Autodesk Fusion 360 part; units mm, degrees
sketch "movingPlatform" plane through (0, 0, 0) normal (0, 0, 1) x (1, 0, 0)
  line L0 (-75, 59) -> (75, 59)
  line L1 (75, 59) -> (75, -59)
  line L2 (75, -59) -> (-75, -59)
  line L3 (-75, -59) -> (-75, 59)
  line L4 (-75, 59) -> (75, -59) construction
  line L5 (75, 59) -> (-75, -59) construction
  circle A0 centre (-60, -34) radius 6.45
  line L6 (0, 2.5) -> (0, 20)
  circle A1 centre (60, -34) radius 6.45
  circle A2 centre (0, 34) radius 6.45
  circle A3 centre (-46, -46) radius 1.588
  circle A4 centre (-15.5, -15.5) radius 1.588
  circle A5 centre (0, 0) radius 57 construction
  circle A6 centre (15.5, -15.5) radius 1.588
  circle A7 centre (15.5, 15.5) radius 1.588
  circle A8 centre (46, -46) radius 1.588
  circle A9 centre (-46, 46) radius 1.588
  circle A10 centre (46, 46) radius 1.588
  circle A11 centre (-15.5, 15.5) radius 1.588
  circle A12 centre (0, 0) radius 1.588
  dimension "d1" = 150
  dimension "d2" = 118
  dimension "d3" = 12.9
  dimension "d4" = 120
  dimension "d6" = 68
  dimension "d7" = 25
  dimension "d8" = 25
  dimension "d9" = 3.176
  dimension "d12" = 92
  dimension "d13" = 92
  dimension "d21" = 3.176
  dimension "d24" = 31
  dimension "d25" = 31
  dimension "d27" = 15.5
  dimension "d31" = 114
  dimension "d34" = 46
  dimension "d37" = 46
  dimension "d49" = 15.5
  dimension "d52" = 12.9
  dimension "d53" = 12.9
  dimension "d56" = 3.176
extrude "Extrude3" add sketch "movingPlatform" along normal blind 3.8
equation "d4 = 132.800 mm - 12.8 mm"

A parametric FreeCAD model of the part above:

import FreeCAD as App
import Part
import Sketcher
Q = App.Units.Quantity


def add_polygon(sketch, points):
    """Adds a closed chain of lines whose ends are joined by coincident constraints."""
    first, n = sketch.GeometryCount, len(points)
    for a, b in zip(points, points[1:] + points[:1]):
        sketch.addGeometry(Part.LineSegment(App.Vector(*a, 0), App.Vector(*b, 0)), False)
    for i in range(n):
        sketch.addConstraint(Sketcher.Constraint("Coincident", first + i, 2, first + (i + 1) % n, 1))

doc = App.newDocument("Part")
body = doc.addObject("PartDesign::Body", "Body")

# Sketch on XY plane
sketch1 = body.newObject("Sketcher::SketchObject", "Sketch")
sketch1.AttachmentSupport = (doc.getObject("XY_Plane"), [""])
sketch1.MapMode = "FlatFace"
add_polygon(sketch1, [(75, 59), (-75, 59), (-75, -59), (75, -59)])  # lines 0-3
sketch1.addGeometry(Part.Circle(App.Vector(-46, -46, 0), App.Vector(0, 0, 1), 1.6), False)  # 4
sketch1.addGeometry(Part.Circle(App.Vector(-60, -34, 0), App.Vector(0, 0, 1), 6.5), False)  # 5
sketch1.addGeometry(Part.Circle(App.Vector(-15.5, -15.5, 0), App.Vector(0, 0, 1), 1.6), False)  # 6
sketch1.addGeometry(Part.Circle(App.Vector(46, -46, 0), App.Vector(0, 0, 1), 1.6), False)  # 7
sketch1.addGeometry(Part.Circle(App.Vector(60, -34, 0), App.Vector(0, 0, 1), 6.5), False)  # 8
sketch1.addGeometry(Part.Circle(App.Vector(15.5, -15.5, 0), App.Vector(0, 0, 1), 1.6), False)  # 9
sketch1.addGeometry(Part.Circle(App.Vector(-15.5, 15.5, 0), App.Vector(0, 0, 1), 1.6), False)  # 10
sketch1.addGeometry(Part.Circle(App.Vector(-46, 46, 0), App.Vector(0, 0, 1), 1.6), False)  # 11
sketch1.addGeometry(Part.Circle(App.Vector(0, 0, 0), App.Vector(0, 0, 1), 1.6), False)  # 12
sketch1.addGeometry(Part.Circle(App.Vector(15.5, 15.5, 0), App.Vector(0, 0, 1), 1.6), False)  # 13
sketch1.addGeometry(Part.Circle(App.Vector(0, 34, 0), App.Vector(0, 0, 1), 6.5), False)  # 14
sketch1.addGeometry(Part.Circle(App.Vector(46, 46, 0), App.Vector(0, 0, 1), 1.6), False)  # 15
sketch1.addConstraint([
    Sketcher.Constraint("Horizontal", 0),
    Sketcher.Constraint("Vertical", 1),
    Sketcher.Constraint("Horizontal", 2),
    Sketcher.Constraint("Vertical", 3),
    Sketcher.Constraint("Coincident", 12, 3, -1, 1),
    Sketcher.Constraint("Equal", 4, 6),
    Sketcher.Constraint("Equal", 6, 7),
    Sketcher.Constraint("Equal", 5, 8),
    Sketcher.Constraint("Equal", 7, 9),
    Sketcher.Constraint("Equal", 9, 10),
    Sketcher.Constraint("Equal", 10, 11),
    Sketcher.Constraint("Equal", 11, 12),
    Sketcher.Constraint("Equal", 12, 13),
    Sketcher.Constraint("Equal", 8, 14),
    Sketcher.Constraint("Equal", 13, 15),
    Sketcher.Constraint("Symmetric", 9, 3, 10, 3, -1, 1),
    Sketcher.Constraint("Symmetric", 7, 3, 11, 3, -1, 1),
    Sketcher.Constraint("Symmetric", 6, 3, 13, 3, -1, 1),
    Sketcher.Constraint("Symmetric", 4, 3, 15, 3, -1, 1),
    Sketcher.Constraint("Symmetric", 0, 2, 2, 2, -1, 1),
    Sketcher.Constraint("Symmetric", 4, 3, 7, 3, -2),
    Sketcher.Constraint("Symmetric", 5, 3, 8, 3, -2),
    Sketcher.Constraint("Symmetric", 6, 3, 9, 3, -2),
    Sketcher.Constraint("PointOnObject", 14, 3, -2),
    Sketcher.Constraint("Diameter", 5, Q("12.9 mm")),
    Sketcher.Constraint("DistanceX", 0, 2, 0, 1, Q("150 mm")),
    Sketcher.Constraint("DistanceY", 1, 2, 1, 1, Q("118 mm")),
    Sketcher.Constraint("Diameter", 4, Q("3.176 mm")),
    Sketcher.Constraint("DistanceX", 4, 3, -1, 1, Q("46 mm")),
    Sketcher.Constraint("DistanceY", 4, 3, -1, 1, Q("46 mm")),
    Sketcher.Constraint("DistanceX", 5, 3, 8, 3, Q("120 mm")),
    Sketcher.Constraint("DistanceX", 6, 3, 9, 3, Q("31 mm")),
    Sketcher.Constraint("DistanceY", 6, 3, 10, 3, Q("31 mm")),
    Sketcher.Constraint("DistanceY", 14, 3, 0, 2, Q("25 mm")),
    Sketcher.Constraint("DistanceY", 1, 2, 5, 3, Q("25 mm")),
])
pad1 = body.newObject("PartDesign::Pad", "Pad")
pad1.Profile = sketch1
pad1.Length = 3.8

doc.recompute()
